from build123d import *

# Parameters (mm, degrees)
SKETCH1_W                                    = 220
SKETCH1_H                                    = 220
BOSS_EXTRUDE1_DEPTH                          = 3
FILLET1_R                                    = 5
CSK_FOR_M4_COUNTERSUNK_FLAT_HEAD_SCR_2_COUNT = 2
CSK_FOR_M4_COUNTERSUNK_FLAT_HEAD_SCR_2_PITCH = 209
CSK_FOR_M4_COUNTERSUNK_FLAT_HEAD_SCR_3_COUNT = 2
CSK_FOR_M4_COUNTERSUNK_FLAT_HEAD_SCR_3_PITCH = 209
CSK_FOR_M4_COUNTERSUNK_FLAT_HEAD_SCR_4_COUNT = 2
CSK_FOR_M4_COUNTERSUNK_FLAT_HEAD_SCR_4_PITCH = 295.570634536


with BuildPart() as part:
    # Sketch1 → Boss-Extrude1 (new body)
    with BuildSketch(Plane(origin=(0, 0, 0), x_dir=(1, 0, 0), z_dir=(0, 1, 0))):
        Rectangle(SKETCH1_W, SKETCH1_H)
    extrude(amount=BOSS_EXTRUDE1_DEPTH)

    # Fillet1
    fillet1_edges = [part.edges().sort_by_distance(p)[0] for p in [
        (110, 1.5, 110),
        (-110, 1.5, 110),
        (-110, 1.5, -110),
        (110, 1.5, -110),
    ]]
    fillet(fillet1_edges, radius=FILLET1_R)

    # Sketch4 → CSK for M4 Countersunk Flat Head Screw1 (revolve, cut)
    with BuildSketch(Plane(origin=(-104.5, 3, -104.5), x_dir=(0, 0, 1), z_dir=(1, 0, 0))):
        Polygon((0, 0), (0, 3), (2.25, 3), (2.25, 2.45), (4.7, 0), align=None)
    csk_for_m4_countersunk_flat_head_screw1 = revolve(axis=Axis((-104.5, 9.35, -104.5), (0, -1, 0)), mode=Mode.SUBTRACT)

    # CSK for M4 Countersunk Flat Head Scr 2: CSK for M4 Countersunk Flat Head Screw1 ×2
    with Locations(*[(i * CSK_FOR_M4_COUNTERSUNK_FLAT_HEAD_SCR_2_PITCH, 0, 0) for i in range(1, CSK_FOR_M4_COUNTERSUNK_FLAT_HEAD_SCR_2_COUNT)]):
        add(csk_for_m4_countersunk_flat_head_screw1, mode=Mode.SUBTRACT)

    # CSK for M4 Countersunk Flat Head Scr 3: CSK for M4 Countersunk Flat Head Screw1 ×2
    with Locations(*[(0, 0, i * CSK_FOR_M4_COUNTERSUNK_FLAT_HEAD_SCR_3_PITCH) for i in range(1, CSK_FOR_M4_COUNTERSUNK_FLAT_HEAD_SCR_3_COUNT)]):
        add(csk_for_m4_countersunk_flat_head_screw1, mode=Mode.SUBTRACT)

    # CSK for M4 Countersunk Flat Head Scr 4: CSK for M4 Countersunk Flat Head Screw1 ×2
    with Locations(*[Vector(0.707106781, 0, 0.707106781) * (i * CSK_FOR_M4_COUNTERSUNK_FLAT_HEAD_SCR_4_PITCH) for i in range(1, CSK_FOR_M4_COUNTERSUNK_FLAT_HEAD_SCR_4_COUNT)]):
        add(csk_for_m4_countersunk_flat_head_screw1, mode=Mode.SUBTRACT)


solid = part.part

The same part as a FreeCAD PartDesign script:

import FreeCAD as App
import Part
import Sketcher
from FreeCAD import Vector
Q = App.Units.Quantity


def edges_at(feature, points):
    """Names of the edges that pass closest to the given points."""
    edges = feature.Shape.Edges
    near = lambda p: min(range(len(edges)), key=lambda i: edges[i].distToShape(Part.Vertex(*p))[0])
    return sorted({f"Edge{near(p) + 1}" for p in points})

doc = App.newDocument("Part")
params = doc.addObject("Spreadsheet::Sheet", "Params")
for row, (alias, value) in enumerate([
    ("sketch1_width", "220 mm"),
    ("pad1_length", "3 mm"),
    ("fillet_radius", "5 mm"),
    ("sketch2_width", "3 mm"),
    ("sketch2_height", "4.7 mm"),
    ("sketch2_width2", "0.55 mm"),
    ("groove_angle", "360 deg"),
    ("linearpattern_pitch", "209 mm"),
    ("linearpattern2_pitch", "209 mm"),
    ("linearpattern3_pitch", "295.570634 mm"),
], start=1):
    params.set(f"A{row}", alias)
    params.set(f"B{row}", "=" + value)
    params.setAlias(f"B{row}", alias)

body = doc.addObject("PartDesign::Body", "Body")

# Sketch on XZ plane
sketch1 = body.newObject("Sketcher::SketchObject", "Sketch")
sketch1.AttachmentSupport = (doc.getObject("XZ_Plane"), [""])
sketch1.MapMode = "FlatFace"
sketch1.addGeometry(Part.LineSegment(Vector(-110, -110, 0), Vector(-110, 110, 0)), False)
sketch1.addGeometry(Part.LineSegment(Vector(-110, 110, 0), Vector(110, 110, 0)), False)
sketch1.addGeometry(Part.LineSegment(Vector(110, 110, 0), Vector(110, -110, 0)), False)
sketch1.addGeometry(Part.LineSegment(Vector(110, -110, 0), Vector(-110, -110, 0)), False)
sketch1.addConstraint(Sketcher.Constraint("Coincident", 0, 2, 1, 1))
sketch1.addConstraint(Sketcher.Constraint("Coincident", 1, 2, 2, 1))
sketch1.addConstraint(Sketcher.Constraint("Coincident", 2, 2, 3, 1))
sketch1.addConstraint(Sketcher.Constraint("Coincident", 3, 2, 0, 1))
sketch1.addConstraint(Sketcher.Constraint("Vertical", 0))
sketch1.addConstraint(Sketcher.Constraint("Horizontal", 1))
sketch1.addConstraint(Sketcher.Constraint("Vertical", 2))
sketch1.addConstraint(Sketcher.Constraint("Horizontal", 3))
sketch1.addConstraint(Sketcher.Constraint("Symmetric", 0, 2, 2, 2, -1, 1))
sketch1.addConstraint(Sketcher.Constraint("Equal", 3, 0))
sketch1.addConstraint(Sketcher.Constraint("DistanceX", 1, 1, 1, 2, Q("220 mm")))
sketch1.setExpression("Constraints[10]", "Params.sketch1_width")
pad1 = body.newObject("PartDesign::Pad", "Pad")
pad1.Profile = sketch1
pad1.setExpression("Length", "Params.pad1_length")
pad1.Reversed = True
doc.recompute()

fillet = body.newObject("PartDesign::Fillet", "Fillet")
fillet.Base = (pad1, edges_at(pad1, [
    (110, 1.5, 110),
    (-110, 1.5, 110),
    (-110, 1.5, -110),
    (110, 1.5, -110),
]))
fillet.setExpression("Radius", "Params.fillet_radius")

# Sketch on YZ plane
sketch2 = body.newObject("Sketcher::SketchObject", "Sketch001")
sketch2.AttachmentSupport = (doc.getObject("YZ_Plane"), [""])
sketch2.MapMode = "FlatFace"
sketch2.AttachmentOffset = App.Placement(Vector(0, 0, -104.5), App.Rotation())
sketch2.addGeometry(Part.LineSegment(Vector(0, -104.5, 0), Vector(3, -104.5, 0)), False)
sketch2.addGeometry(Part.LineSegment(Vector(3, -104.5, 0), Vector(3, -99.8, 0)), False)
sketch2.addGeometry(Part.LineSegment(Vector(3, -99.8, 0), Vector(0.55, -102.25, 0)), False)
sketch2.addGeometry(Part.LineSegment(Vector(0.55, -102.25, 0), Vector(0, -102.25, 0)), False)
sketch2.addGeometry(Part.LineSegment(Vector(0, -102.25, 0), Vector(0, -104.5, 0)), False)
sketch2.addGeometry(Part.LineSegment(Vector(3, -104.5, 0), Vector(0, -104.5, 0)), True)  # axis
sketch2.addConstraint(Sketcher.Constraint("Coincident", 0, 2, 1, 1))
sketch2.addConstraint(Sketcher.Constraint("Coincident", 1, 2, 2, 1))
sketch2.addConstraint(Sketcher.Constraint("Coincident", 2, 2, 3, 1))
sketch2.addConstraint(Sketcher.Constraint("Coincident", 3, 2, 4, 1))
sketch2.addConstraint(Sketcher.Constraint("Coincident", 4, 2, 0, 1))
sketch2.addConstraint(Sketcher.Constraint("Horizontal", 0))
sketch2.addConstraint(Sketcher.Constraint("Vertical", 1))
sketch2.addConstraint(Sketcher.Constraint("Horizontal", 3))
sketch2.addConstraint(Sketcher.Constraint("Vertical", 4))
sketch2.addConstraint(Sketcher.Constraint("Horizontal", 5))
sketch2.addConstraint(Sketcher.Constraint("Coincident", 5, 1, 0, 2))
sketch2.addConstraint(Sketcher.Constraint("PointOnObject", 3, 2, -2))
sketch2.addConstraint(Sketcher.Constraint("PointOnObject", 5, 2, -2))
sketch2.addConstraint(Sketcher.Constraint("DistanceX", 0, 1, 0, 2, Q("3 mm")))
sketch2.addConstraint(Sketcher.Constraint("Angle", 2, Q("-135 deg")))
sketch2.addConstraint(Sketcher.Constraint("DistanceY", 1, 1, 1, 2, Q("4.7 mm")))
sketch2.addConstraint(Sketcher.Constraint("DistanceX", 3, 2, 3, 1, Q("0.55 mm")))
sketch2.addConstraint(Sketcher.Constraint("DistanceY", 0, 2, -1, 1, Q("104.5 mm")))
sketch2.setExpression("Constraints[13]", "Params.sketch2_width")
sketch2.setExpression("Constraints[15]", "Params.sketch2_height")
sketch2.setExpression("Constraints[16]", "Params.sketch2_width2")
groove = body.newObject("PartDesign::Groove", "Groove")
groove.Profile = sketch2
groove.ReferenceAxis = (sketch2, ["Axis0"])
groove.setExpression("Angle", "Params.groove_angle")
doc.recompute()

linearpattern = body.newObject("PartDesign::LinearPattern", "LinearPattern")
linearpattern.Originals = [groove]
linearpattern.Direction = (doc.getObject("X_Axis"), [""])
linearpattern.Mode = "offset"
linearpattern.setExpression("Offset", "Params.linearpattern_pitch")
linearpattern.Occurrences = 2
body.Tip = linearpattern
doc.recompute()

linearpattern2 = body.newObject("PartDesign::LinearPattern", "LinearPattern001")
linearpattern2.Originals = [groove]
linearpattern2.Direction = (doc.getObject("Z_Axis"), [""])
linearpattern2.Mode = "offset"
linearpattern2.setExpression("Offset", "Params.linearpattern2_pitch")
linearpattern2.Occurrences = 2
body.Tip = linearpattern2
doc.recompute()

datumline = body.newObject("PartDesign::Line", "DatumLine")
datumline.Placement = App.Placement(Vector(0, 0, 0), App.Rotation(Vector(0, 0, 1), Vector(0.707106781, 0, 0.707106781)))
linearpattern3 = body.newObject("PartDesign::LinearPattern", "LinearPattern002")
linearpattern3.Originals = [groove]
linearpattern3.Direction = (datumline, [""])
linearpattern3.Mode = "offset"
linearpattern3.setExpression("Offset", "Params.linearpattern3_pitch")
linearpattern3.Occurrences = 2
body.Tip = linearpattern3

doc.recompute()
